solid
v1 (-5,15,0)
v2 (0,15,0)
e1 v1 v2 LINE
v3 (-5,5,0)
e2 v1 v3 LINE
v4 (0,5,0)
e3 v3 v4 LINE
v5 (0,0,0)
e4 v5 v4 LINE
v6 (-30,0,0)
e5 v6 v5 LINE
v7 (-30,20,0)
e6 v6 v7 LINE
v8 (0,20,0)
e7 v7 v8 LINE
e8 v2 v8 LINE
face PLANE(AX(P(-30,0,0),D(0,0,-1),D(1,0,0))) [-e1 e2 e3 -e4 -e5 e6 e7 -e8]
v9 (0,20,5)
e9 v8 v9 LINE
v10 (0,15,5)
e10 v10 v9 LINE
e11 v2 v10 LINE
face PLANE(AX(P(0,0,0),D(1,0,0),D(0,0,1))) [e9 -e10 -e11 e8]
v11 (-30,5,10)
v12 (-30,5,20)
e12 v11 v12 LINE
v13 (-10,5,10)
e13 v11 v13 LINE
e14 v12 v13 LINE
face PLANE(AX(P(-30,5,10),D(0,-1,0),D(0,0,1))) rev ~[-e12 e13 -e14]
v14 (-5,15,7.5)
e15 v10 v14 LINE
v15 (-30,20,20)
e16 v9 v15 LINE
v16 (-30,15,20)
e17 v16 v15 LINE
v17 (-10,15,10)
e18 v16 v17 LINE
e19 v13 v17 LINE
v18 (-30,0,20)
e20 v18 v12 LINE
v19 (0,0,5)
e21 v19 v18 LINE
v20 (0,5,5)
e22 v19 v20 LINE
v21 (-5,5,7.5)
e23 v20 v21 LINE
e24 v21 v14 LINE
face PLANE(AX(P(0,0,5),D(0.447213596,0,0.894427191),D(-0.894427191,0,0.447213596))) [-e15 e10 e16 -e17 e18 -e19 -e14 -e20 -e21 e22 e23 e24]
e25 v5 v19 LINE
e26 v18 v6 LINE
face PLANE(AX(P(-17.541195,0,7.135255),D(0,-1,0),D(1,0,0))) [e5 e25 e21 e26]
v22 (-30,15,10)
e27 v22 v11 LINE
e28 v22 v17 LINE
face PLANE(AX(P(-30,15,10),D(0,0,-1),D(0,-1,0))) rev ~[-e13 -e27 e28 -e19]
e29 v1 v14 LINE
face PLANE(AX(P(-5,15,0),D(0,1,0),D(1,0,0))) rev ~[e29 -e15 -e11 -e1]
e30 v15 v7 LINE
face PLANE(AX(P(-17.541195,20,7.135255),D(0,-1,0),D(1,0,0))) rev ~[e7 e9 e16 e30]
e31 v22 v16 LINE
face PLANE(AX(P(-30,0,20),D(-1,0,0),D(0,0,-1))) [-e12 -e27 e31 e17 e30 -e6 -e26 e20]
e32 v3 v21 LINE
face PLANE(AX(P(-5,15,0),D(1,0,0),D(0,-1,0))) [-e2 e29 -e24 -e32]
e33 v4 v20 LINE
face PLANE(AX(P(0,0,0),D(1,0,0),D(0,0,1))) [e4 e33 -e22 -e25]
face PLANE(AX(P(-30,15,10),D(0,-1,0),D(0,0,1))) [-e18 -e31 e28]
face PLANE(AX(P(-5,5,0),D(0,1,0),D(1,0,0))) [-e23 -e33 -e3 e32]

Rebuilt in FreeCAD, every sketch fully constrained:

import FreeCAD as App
import Part
import Sketcher

V = App.Vector
Q = App.Units.Quantity

doc = App.newDocument("Part")
body = doc.addObject("PartDesign::Body", "Body")

sketch1 = doc.addObject("Sketcher::SketchObject", "Sketch")
body.addObject(sketch1)
sketch1.AttachmentSupport = (doc.XZ_Plane, [""])
sketch1.MapMode = "FlatFace"
sketch1.addGeometry(Part.LineSegment(V(-30, 0, 0), V(0, 0, 0)), False)
sketch1.addGeometry(Part.LineSegment(V(0, 0, 0), V(0, 5, 0)), False)
sketch1.addGeometry(Part.LineSegment(V(0, 5, 0), V(-30, 20, 0)), False)
sketch1.addGeometry(Part.LineSegment(V(-30, 20, 0), V(-30, 0, 0)), False)
sketch1.addConstraint(Sketcher.Constraint("Coincident", 0, 2, 1, 1))
sketch1.addConstraint(Sketcher.Constraint("Coincident", 1, 2, 2, 1))
sketch1.addConstraint(Sketcher.Constraint("Coincident", 2, 2, 3, 1))
sketch1.addConstraint(Sketcher.Constraint("Coincident", 3, 2, 0, 1))
sketch1.addConstraint(Sketcher.Constraint("Horizontal", 0))
sketch1.addConstraint(Sketcher.Constraint("Vertical", 1))
sketch1.addConstraint(Sketcher.Constraint("Vertical", 3))
sketch1.addConstraint(Sketcher.Constraint("Coincident", 0, 2, -1, 1))
sketch1.addConstraint(Sketcher.Constraint("DistanceX", 0, 1, 0, 2, Q("30 mm")))
sketch1.addConstraint(Sketcher.Constraint("DistanceY", 1, 1, 1, 2, Q("5 mm")))
sketch1.addConstraint(Sketcher.Constraint("DistanceY", 3, 2, 3, 1, Q("20 mm")))
pad1 = doc.addObject("PartDesign::Pad", "Pad")
body.addObject(pad1)
pad1.Profile = sketch1
pad1.Length = 20
pad1.Reversed = True

sketch2 = doc.addObject("Sketcher::SketchObject", "Sketch001")
body.addObject(sketch2)
sketch2.AttachmentSupport = (doc.YZ_Plane, [""])
sketch2.MapMode = "FlatFace"
sketch2.AttachmentOffset = App.Placement(V(0, 0, -30), App.Rotation())
sketch2.addGeometry(Part.LineSegment(V(15, 20, 0), V(15, 10, 0)), False)
sketch2.addGeometry(Part.LineSegment(V(15, 10, 0), V(5, 10, 0)), False)
sketch2.addGeometry(Part.LineSegment(V(5, 10, 0), V(5, 20, 0)), False)
sketch2.addGeometry(Part.LineSegment(V(5, 20, 0), V(15, 20, 0)), False)
sketch2.addConstraint(Sketcher.Constraint("Coincident", 0, 2, 1, 1))
sketch2.addConstraint(Sketcher.Constraint("Coincident", 1, 2, 2, 1))
sketch2.addConstraint(Sketcher.Constraint("Coincident", 2, 2, 3, 1))
sketch2.addConstraint(Sketcher.Constraint("Coincident", 3, 2, 0, 1))
sketch2.addConstraint(Sketcher.Constraint("Vertical", 0))
sketch2.addConstraint(Sketcher.Constraint("Horizontal", 1))
sketch2.addConstraint(Sketcher.Constraint("Vertical", 2))
sketch2.addConstraint(Sketcher.Constraint("Horizontal", 3))
sketch2.addConstraint(Sketcher.Constraint("Equal", 3, 0))
sketch2.addConstraint(Sketcher.Constraint("DistanceX", 1, 2, 1, 1, Q("10 mm")))
sketch2.addConstraint(Sketcher.Constraint("DistanceX", -1, 1, 0, 2, Q("15 mm")))
sketch2.addConstraint(Sketcher.Constraint("DistanceY", -1, 1, 0, 2, Q("10 mm")))
pocket1 = doc.addObject("PartDesign::Pocket", "Pocket")
body.addObject(pocket1)
pocket1.Profile = sketch2
pocket1.Type = "ThroughAll"
pocket1.Reversed = True

sketch3 = doc.addObject("Sketcher::SketchObject", "Sketch002")
body.addObject(sketch3)
sketch3.AttachmentSupport = (doc.XY_Plane, [""])
sketch3.MapMode = "FlatFace"
sketch3.addGeometry(Part.LineSegment(V(-5, 5, 0), V(-5, 15, 0)), False)
sketch3.addGeometry(Part.LineSegment(V(-5, 15, 0), V(0, 15, 0)), False)
sketch3.addGeometry(Part.LineSegment(V(0, 15, 0), V(0, 5, 0)), False)
sketch3.addGeometry(Part.LineSegment(V(0, 5, 0), V(-5, 5, 0)), False)
sketch3.addConstraint(Sketcher.Constraint("Coincident", 0, 2, 1, 1))
sketch3.addConstraint(Sketcher.Constraint("Coincident", 1, 2, 2, 1))
sketch3.addConstraint(Sketcher.Constraint("Coincident", 2, 2, 3, 1))
sketch3.addConstraint(Sketcher.Constraint("Coincident", 3, 2, 0, 1))
sketch3.addConstraint(Sketcher.Constraint("Vertical", 0))
sketch3.addConstraint(Sketcher.Constraint("Horizontal", 1))
sketch3.addConstraint(Sketcher.Constraint("Vertical", 2))
sketch3.addConstraint(Sketcher.Constraint("Horizontal", 3))
sketch3.addConstraint(Sketcher.Constraint("PointOnObject", 1, 2, -2))
sketch3.addConstraint(Sketcher.Constraint("DistanceX", 1, 1, 1, 2, Q("5 mm")))
sketch3.addConstraint(Sketcher.Constraint("DistanceY", 0, 1, 0, 2, Q("10 mm")))
sketch3.addConstraint(Sketcher.Constraint("DistanceY", -1, 1, 0, 2, Q("15 mm")))
pocket2 = doc.addObject("PartDesign::Pocket", "Pocket001")
body.addObject(pocket2)
pocket2.Profile = sketch3
pocket2.Type = "ThroughAll"
pocket2.Reversed = True

doc.recompute()
